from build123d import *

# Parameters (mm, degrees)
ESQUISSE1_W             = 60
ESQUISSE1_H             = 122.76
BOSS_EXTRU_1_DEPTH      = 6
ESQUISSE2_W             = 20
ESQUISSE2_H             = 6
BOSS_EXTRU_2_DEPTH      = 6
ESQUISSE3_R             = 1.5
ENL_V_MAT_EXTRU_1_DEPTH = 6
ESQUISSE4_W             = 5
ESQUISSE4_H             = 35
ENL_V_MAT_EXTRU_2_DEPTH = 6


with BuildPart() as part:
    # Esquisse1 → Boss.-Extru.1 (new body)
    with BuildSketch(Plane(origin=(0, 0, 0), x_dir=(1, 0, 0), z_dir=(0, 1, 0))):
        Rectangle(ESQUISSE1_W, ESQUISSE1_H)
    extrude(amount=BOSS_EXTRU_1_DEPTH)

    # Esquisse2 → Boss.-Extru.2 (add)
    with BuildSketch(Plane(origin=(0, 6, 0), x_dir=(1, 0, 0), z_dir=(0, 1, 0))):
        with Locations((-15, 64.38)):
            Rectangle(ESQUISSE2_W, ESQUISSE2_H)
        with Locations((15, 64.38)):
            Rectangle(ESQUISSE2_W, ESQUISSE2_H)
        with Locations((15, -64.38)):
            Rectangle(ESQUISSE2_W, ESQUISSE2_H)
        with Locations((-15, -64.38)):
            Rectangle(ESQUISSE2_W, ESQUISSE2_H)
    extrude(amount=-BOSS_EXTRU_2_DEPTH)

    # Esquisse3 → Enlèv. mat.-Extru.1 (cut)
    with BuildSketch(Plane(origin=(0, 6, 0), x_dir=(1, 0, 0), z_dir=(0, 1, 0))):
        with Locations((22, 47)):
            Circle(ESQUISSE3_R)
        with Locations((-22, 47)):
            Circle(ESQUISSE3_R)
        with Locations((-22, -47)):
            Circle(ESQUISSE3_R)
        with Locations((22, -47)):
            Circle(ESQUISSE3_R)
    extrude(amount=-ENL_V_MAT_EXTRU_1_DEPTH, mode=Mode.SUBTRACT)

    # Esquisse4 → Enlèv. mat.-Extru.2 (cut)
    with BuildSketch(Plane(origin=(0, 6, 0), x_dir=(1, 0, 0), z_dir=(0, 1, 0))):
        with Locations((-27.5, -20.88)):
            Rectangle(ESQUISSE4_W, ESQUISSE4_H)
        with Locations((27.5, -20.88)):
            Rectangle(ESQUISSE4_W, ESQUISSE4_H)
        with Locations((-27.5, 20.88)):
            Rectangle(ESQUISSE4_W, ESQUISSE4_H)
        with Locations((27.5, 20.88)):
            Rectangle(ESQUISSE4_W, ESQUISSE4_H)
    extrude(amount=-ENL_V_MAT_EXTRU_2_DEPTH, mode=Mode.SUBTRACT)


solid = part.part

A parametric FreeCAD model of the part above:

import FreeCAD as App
import Part
import Sketcher
from FreeCAD import Vector
Q = App.Units.Quantity


def add_polygon(sketch, points):
    """Adds a closed chain of lines whose ends are joined by coincident constraints."""
    first, n = sketch.GeometryCount, len(points)
    for a, b in zip(points, points[1:] + points[:1]):
        sketch.addGeometry(Part.LineSegment(App.Vector(*a, 0), App.Vector(*b, 0)), False)
    for i in range(n):
        sketch.addConstraint(Sketcher.Constraint("Coincident", first + i, 2, first + (i + 1) % n, 1))

doc = App.newDocument("Part")
body = doc.addObject("PartDesign::Body", "Body")

# Sketch on XZ plane
sketch1 = body.newObject("Sketcher::SketchObject", "Sketch")
sketch1.AttachmentSupport = (doc.getObject("XZ_Plane"), [""])
sketch1.MapMode = "FlatFace"
add_polygon(sketch1, [(-30, -61), (-30, 61), (30, 61), (30, -61)])  # lines 0-3
sketch1.addConstraint(Sketcher.Constraint("Vertical", 0))
sketch1.addConstraint(Sketcher.Constraint("Horizontal", 1))
sketch1.addConstraint(Sketcher.Constraint("Vertical", 2))
sketch1.addConstraint(Sketcher.Constraint("Horizontal", 3))
sketch1.addConstraint(Sketcher.Constraint("Symmetric", 0, 2, 2, 2, -1, 1))
sketch1.addConstraint(Sketcher.Constraint("DistanceX", 1, 1, 1, 2, Q("60 mm")))
sketch1.addConstraint(Sketcher.Constraint("DistanceY", 0, 1, 0, 2, Q("122.76 mm")))
pad1 = body.newObject("PartDesign::Pad", "Pad")
pad1.Profile = sketch1
pad1.Length = 6
pad1.Reversed = True

# Sketch on XZ plane
sketch2 = body.newObject("Sketcher::SketchObject", "Sketch001")
sketch2.AttachmentSupport = (doc.getObject("XZ_Plane"), [""])
sketch2.MapMode = "FlatFace"
sketch2.AttachmentOffset = App.Placement(Vector(0, 0, -6), App.Rotation())
add_polygon(sketch2, [(-25, -67), (-25, -61), (-5, -61), (-5, -67)])  # lines 0-3
add_polygon(sketch2, [(5, -67), (5, -61), (25, -61), (25, -67)])  # lines 4-7
add_polygon(sketch2, [(5, 61), (5, 67), (25, 67), (25, 61)])  # lines 8-11
add_polygon(sketch2, [(-25, 61), (-25, 67), (-5, 67), (-5, 61)])  # lines 12-15
sketch2.addConstraint(Sketcher.Constraint("Vertical", 0))
sketch2.addConstraint(Sketcher.Constraint("Horizontal", 1))
sketch2.addConstraint(Sketcher.Constraint("Vertical", 2))
sketch2.addConstraint(Sketcher.Constraint("Horizontal", 3))
sketch2.addConstraint(Sketcher.Constraint("Vertical", 4))
sketch2.addConstraint(Sketcher.Constraint("Horizontal", 5))
sketch2.addConstraint(Sketcher.Constraint("Vertical", 6))
sketch2.addConstraint(Sketcher.Constraint("Horizontal", 7))
sketch2.addConstraint(Sketcher.Constraint("Vertical", 8))
sketch2.addConstraint(Sketcher.Constraint("Horizontal", 9))
sketch2.addConstraint(Sketcher.Constraint("Vertical", 10))
sketch2.addConstraint(Sketcher.Constraint("Horizontal", 11))
sketch2.addConstraint(Sketcher.Constraint("Vertical", 12))
sketch2.addConstraint(Sketcher.Constraint("Horizontal", 13))
sketch2.addConstraint(Sketcher.Constraint("Vertical", 14))
sketch2.addConstraint(Sketcher.Constraint("Horizontal", 15))
sketch2.addConstraint(Sketcher.Constraint("Symmetric", 2, 2, 8, 2, -1, 1))
sketch2.addConstraint(Sketcher.Constraint("Symmetric", 0, 2, 10, 2, -1, 1))
sketch2.addConstraint(Sketcher.Constraint("Symmetric", 6, 2, 12, 2, -1, 1))
sketch2.addConstraint(Sketcher.Constraint("Symmetric", 4, 2, 14, 2, -1, 1))
sketch2.addConstraint(Sketcher.Constraint("Symmetric", 1, 2, 4, 2, -2))
sketch2.addConstraint(Sketcher.Constraint("Symmetric", 3, 2, 6, 2, -2))
sketch2.addConstraint(Sketcher.Constraint("DistanceX", 1, 1, 1, 2, Q("20 mm")))
sketch2.addConstraint(Sketcher.Constraint("DistanceY", 0, 1, 0, 2, Q("6 mm")))
sketch2.addConstraint(Sketcher.Constraint("DistanceX", 0, 2, -1, 1, Q("25 mm")))
sketch2.addConstraint(Sketcher.Constraint("DistanceY", 0, 2, -1, 1, Q("61.38 mm")))
pad2 = body.newObject("PartDesign::Pad", "Pad001")
pad2.Profile = sketch2
pad2.Length = 6

# Sketch on XZ plane
sketch3 = body.newObject("Sketcher::SketchObject", "Sketch002")
sketch3.AttachmentSupport = (doc.getObject("XZ_Plane"), [""])
sketch3.MapMode = "FlatFace"
sketch3.AttachmentOffset = App.Placement(Vector(0, 0, -6), App.Rotation())
sketch3.addGeometry(Part.Circle(Vector(22, -47, 0), Vector(0, 0, 1), 1.5), False)
sketch3.addGeometry(Part.Circle(Vector(-22, -47, 0), Vector(0, 0, 1), 1.5), False)
sketch3.addGeometry(Part.Circle(Vector(-22, 47, 0), Vector(0, 0, 1), 1.5), False)
sketch3.addGeometry(Part.Circle(Vector(22, 47, 0), Vector(0, 0, 1), 1.5), False)
sketch3.addConstraint(Sketcher.Constraint("Equal", 0, 1))
sketch3.addConstraint(Sketcher.Constraint("Equal", 1, 2))
sketch3.addConstraint(Sketcher.Constraint("Equal", 2, 3))
sketch3.addConstraint(Sketcher.Constraint("Symmetric", 0, 3, 2, 3, -1, 1))
sketch3.addConstraint(Sketcher.Constraint("Symmetric", 1, 3, 3, 3, -1, 1))
sketch3.addConstraint(Sketcher.Constraint("Symmetric", 0, 3, 1, 3, -2))
sketch3.addConstraint(Sketcher.Constraint("Diameter", 0, Q("3 mm")))
sketch3.addConstraint(Sketcher.Constraint("DistanceX", -1, 1, 0, 3, Q("22 mm")))
sketch3.addConstraint(Sketcher.Constraint("DistanceY", 0, 3, -1, 1, Q("47 mm")))
pocket1 = body.newObject("PartDesign::Pocket", "Pocket")
pocket1.Profile = sketch3
pocket1.Length = 6
pocket1.Reversed = True

# Sketch on XZ plane
sketch4 = body.newObject("Sketcher::SketchObject", "Sketch003")
sketch4.AttachmentSupport = (doc.getObject("XZ_Plane"), [""])
sketch4.MapMode = "FlatFace"
sketch4.AttachmentOffset = App.Placement(Vector(0, 0, -6), App.Rotation())
add_polygon(sketch4, [(-30, 3), (-30, 38), (-25, 38), (-25, 3)])  # lines 0-3
add_polygon(sketch4, [(25, 3), (25, 38), (30, 38), (30, 3)])  # lines 4-7
add_polygon(sketch4, [(-30, -38), (-30, -3), (-25, -3), (-25, -38)])  # lines 8-11
add_polygon(sketch4, [(25, -38), (25, -3), (30, -3), (30, -38)])  # lines 12-15
sketch4.addConstraint(Sketcher.Constraint("Vertical", 0))
sketch4.addConstraint(Sketcher.Constraint("Horizontal", 1))
sketch4.addConstraint(Sketcher.Constraint("Vertical", 2))
sketch4.addConstraint(Sketcher.Constraint("Horizontal", 3))
sketch4.addConstraint(Sketcher.Constraint("Vertical", 4))
sketch4.addConstraint(Sketcher.Constraint("Horizontal", 5))
sketch4.addConstraint(Sketcher.Constraint("Vertical", 6))
sketch4.addConstraint(Sketcher.Constraint("Horizontal", 7))
sketch4.addConstraint(Sketcher.Constraint("Vertical", 8))
sketch4.addConstraint(Sketcher.Constraint("Horizontal", 9))
sketch4.addConstraint(Sketcher.Constraint("Vertical", 10))
sketch4.addConstraint(Sketcher.Constraint("Horizontal", 11))
sketch4.addConstraint(Sketcher.Constraint("Vertical", 12))
sketch4.addConstraint(Sketcher.Constraint("Horizontal", 13))
sketch4.addConstraint(Sketcher.Constraint("Vertical", 14))
sketch4.addConstraint(Sketcher.Constraint("Horizontal", 15))
sketch4.addConstraint(Sketcher.Constraint("Symmetric", 6, 2, 8, 2, -1, 1))
sketch4.addConstraint(Sketcher.Constraint("Symmetric", 4, 2, 10, 2, -1, 1))
sketch4.addConstraint(Sketcher.Constraint("Symmetric", 2, 2, 12, 2, -1, 1))
sketch4.addConstraint(Sketcher.Constraint("Symmetric", 0, 2, 14, 2, -1, 1))
sketch4.addConstraint(Sketcher.Constraint("Symmetric", 1, 2, 4, 2, -2))
sketch4.addConstraint(Sketcher.Constraint("Symmetric", 3, 2, 6, 2, -2))
sketch4.addConstraint(Sketcher.Constraint("DistanceX", 1, 1, 1, 2, Q("5 mm")))
sketch4.addConstraint(Sketcher.Constraint("DistanceY", 0, 1, 0, 2, Q("35 mm")))
sketch4.addConstraint(Sketcher.Constraint("DistanceX", 0, 2, -1, 1, Q("30 mm")))
sketch4.addConstraint(Sketcher.Constraint("DistanceY", -1, 1, 0, 2, Q("38.38 mm")))
pocket2 = body.newObject("PartDesign::Pocket", "Pocket001")
pocket2.Profile = sketch4
pocket2.Length = 6
pocket2.Reversed = True

doc.recompute()
